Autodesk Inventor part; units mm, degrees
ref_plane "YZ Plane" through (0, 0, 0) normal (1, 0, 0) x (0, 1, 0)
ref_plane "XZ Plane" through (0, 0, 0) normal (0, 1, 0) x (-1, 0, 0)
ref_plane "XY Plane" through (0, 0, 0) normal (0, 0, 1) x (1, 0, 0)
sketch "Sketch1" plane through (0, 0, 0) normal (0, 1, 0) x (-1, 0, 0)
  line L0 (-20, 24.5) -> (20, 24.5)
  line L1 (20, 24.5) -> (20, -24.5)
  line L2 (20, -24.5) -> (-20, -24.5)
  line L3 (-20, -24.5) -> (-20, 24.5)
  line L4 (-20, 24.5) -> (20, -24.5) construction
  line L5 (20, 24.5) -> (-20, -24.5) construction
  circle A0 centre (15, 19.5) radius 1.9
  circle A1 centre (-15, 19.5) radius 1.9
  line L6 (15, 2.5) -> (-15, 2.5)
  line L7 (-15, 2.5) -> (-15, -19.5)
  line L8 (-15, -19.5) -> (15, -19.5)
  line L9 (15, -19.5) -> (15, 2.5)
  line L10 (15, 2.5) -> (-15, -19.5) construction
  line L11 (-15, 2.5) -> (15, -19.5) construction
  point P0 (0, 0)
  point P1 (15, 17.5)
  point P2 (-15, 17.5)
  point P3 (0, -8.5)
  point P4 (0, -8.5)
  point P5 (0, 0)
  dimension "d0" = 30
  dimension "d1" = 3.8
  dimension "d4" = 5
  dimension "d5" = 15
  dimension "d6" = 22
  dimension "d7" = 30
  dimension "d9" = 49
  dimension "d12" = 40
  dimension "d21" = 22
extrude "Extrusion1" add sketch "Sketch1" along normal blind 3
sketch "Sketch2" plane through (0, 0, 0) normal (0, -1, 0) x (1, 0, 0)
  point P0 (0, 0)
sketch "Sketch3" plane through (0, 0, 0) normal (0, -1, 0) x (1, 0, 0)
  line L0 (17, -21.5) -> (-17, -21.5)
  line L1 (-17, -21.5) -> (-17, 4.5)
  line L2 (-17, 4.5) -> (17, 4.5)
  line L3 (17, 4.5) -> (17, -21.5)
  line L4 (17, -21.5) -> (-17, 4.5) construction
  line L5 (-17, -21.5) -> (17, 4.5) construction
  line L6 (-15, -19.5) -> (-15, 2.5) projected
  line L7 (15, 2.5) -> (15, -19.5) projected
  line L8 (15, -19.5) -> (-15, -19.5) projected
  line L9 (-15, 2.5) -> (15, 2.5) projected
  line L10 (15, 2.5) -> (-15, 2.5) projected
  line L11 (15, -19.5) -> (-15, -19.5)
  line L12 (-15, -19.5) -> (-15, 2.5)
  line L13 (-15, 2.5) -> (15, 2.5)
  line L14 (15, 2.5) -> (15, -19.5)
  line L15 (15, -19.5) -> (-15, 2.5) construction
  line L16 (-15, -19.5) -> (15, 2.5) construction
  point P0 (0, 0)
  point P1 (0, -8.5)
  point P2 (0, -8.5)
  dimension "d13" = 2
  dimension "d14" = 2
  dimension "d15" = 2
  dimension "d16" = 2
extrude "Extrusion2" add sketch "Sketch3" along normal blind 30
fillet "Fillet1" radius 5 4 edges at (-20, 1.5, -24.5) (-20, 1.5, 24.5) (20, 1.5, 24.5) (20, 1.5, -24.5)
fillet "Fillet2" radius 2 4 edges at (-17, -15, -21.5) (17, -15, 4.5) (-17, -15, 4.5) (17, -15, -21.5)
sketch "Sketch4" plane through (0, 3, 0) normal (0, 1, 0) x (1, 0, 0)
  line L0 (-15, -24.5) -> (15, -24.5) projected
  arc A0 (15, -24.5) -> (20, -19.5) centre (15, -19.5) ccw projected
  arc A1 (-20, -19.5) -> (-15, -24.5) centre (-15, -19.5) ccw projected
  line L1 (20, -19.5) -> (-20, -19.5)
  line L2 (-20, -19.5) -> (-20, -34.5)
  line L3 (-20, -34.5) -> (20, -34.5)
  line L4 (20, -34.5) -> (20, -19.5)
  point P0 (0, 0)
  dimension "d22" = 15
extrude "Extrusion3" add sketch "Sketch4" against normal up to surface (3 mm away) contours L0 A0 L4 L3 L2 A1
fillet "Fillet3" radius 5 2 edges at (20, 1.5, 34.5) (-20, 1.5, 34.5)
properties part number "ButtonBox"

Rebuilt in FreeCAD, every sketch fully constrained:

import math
import FreeCAD as App
import Part
import Sketcher
from FreeCAD import Vector


def edges_at(feature, points):
    """Names of the edges that pass closest to the given points."""
    edges = feature.Shape.Edges
    near = lambda p: min(range(len(edges)), key=lambda i: edges[i].distToShape(Part.Vertex(*p))[0])
    return sorted({f"Edge{near(p) + 1}" for p in points})

doc = App.newDocument("Part")
body = doc.addObject("PartDesign::Body", "Body")

# Sketch on XZ plane
sketch1 = body.newObject("Sketcher::SketchObject", "Sketch")
sketch1.AttachmentSupport = (doc.getObject("XZ_Plane"), [""])
sketch1.MapMode = "FlatFace"
sketch1.addGeometry([
    Part.LineSegment(Vector(-20, 24.5, 0), Vector(20, 24.5, 0)),  # 0
    Part.LineSegment(Vector(20, 24.5, 0), Vector(20, -24.5, 0)),  # 1
    Part.LineSegment(Vector(20, -24.5, 0), Vector(-20, -24.5, 0)),  # 2
    Part.LineSegment(Vector(-20, -24.5, 0), Vector(-20, 24.5, 0)),  # 3
    Part.LineSegment(Vector(15, 2.5, 0), Vector(-15, 2.5, 0)),  # 4
    Part.LineSegment(Vector(-15, 2.5, 0), Vector(-15, -19.5, 0)),  # 5
    Part.LineSegment(Vector(-15, -19.5, 0), Vector(15, -19.5, 0)),  # 6
    Part.LineSegment(Vector(15, -19.5, 0), Vector(15, 2.5, 0)),  # 7
    Part.Circle(Vector(15, 19.5, 0), Vector(0, 0, 1), 1.9),  # 8
    Part.Circle(Vector(-15, 19.5, 0), Vector(0, 0, 1), 1.9),  # 9
], False)
sketch1.addConstraint([
    Sketcher.Constraint("Coincident", 0, 2, 1, 1),
    Sketcher.Constraint("Coincident", 1, 2, 2, 1),
    Sketcher.Constraint("Coincident", 2, 2, 3, 1),
    Sketcher.Constraint("Coincident", 3, 2, 0, 1),
    Sketcher.Constraint("Coincident", 4, 2, 5, 1),
    Sketcher.Constraint("Coincident", 5, 2, 6, 1),
    Sketcher.Constraint("Coincident", 6, 2, 7, 1),
    Sketcher.Constraint("Coincident", 7, 2, 4, 1),
    Sketcher.Constraint("Horizontal", 0),
    Sketcher.Constraint("Vertical", 1),
    Sketcher.Constraint("Horizontal", 2),
    Sketcher.Constraint("Vertical", 3),
    Sketcher.Constraint("Horizontal", 4),
    Sketcher.Constraint("Vertical", 5),
    Sketcher.Constraint("Horizontal", 6),
    Sketcher.Constraint("Vertical", 7),
    Sketcher.Constraint("Equal", 8, 9),
    Sketcher.Constraint("Symmetric", 0, 2, 2, 2, -1, 1),
    Sketcher.Constraint("Symmetric", 8, 3, 9, 3, -2),
    Sketcher.Constraint("Vertical", 9, 3, 4, 2),
    Sketcher.Constraint("Vertical", 8, 3, 6, 2),
    Sketcher.Constraint("Diameter", 8, 3.8),
    Sketcher.Constraint("DistanceX", 0, 1, 0, 2, 40.0),
    Sketcher.Constraint("DistanceX", 4, 2, 4, 1, 30.0),
    Sketcher.Constraint("DistanceY", 1, 2, 1, 1, 49.0),
    Sketcher.Constraint("DistanceY", 5, 2, 5, 1, 22.0),
    Sketcher.Constraint("DistanceY", 8, 3, 0, 2, 5.0),
    Sketcher.Constraint("DistanceY", 4, 2, 3, 2, 22.0),
])
pad1 = body.newObject("PartDesign::Pad", "Pad")
pad1.Profile = sketch1
pad1.Length = 3
pad1.Reversed = True

# Sketch on XZ plane
sketch2 = body.newObject("Sketcher::SketchObject", "Sketch001")
sketch2.AttachmentSupport = (doc.getObject("XZ_Plane"), [""])
sketch2.MapMode = "FlatFace"
sketch2.addGeometry([
    Part.LineSegment(Vector(-17, -22, 0), Vector(17, -22, 0)),  # 0
    Part.LineSegment(Vector(17, -22, 0), Vector(17, 4, 0)),  # 1
    Part.LineSegment(Vector(17, 4, 0), Vector(-17, 4, 0)),  # 2
    Part.LineSegment(Vector(-17, 4, 0), Vector(-17, -22, 0)),  # 3
    Part.LineSegment(Vector(15, -20, 0), Vector(-15, -20, 0)),  # 4
    Part.LineSegment(Vector(-15, -20, 0), Vector(-15, 2, 0)),  # 5
    Part.LineSegment(Vector(-15, 2, 0), Vector(15, 2, 0)),  # 6
    Part.LineSegment(Vector(15, 2, 0), Vector(15, -20, 0)),  # 7
], False)
sketch2.addConstraint([
    Sketcher.Constraint("Coincident", 0, 2, 1, 1),
    Sketcher.Constraint("Coincident", 1, 2, 2, 1),
    Sketcher.Constraint("Coincident", 2, 2, 3, 1),
    Sketcher.Constraint("Coincident", 3, 2, 0, 1),
    Sketcher.Constraint("Coincident", 4, 2, 5, 1),
    Sketcher.Constraint("Coincident", 5, 2, 6, 1),
    Sketcher.Constraint("Coincident", 6, 2, 7, 1),
    Sketcher.Constraint("Coincident", 7, 2, 4, 1),
    Sketcher.Constraint("Horizontal", 0),
    Sketcher.Constraint("Vertical", 1),
    Sketcher.Constraint("Horizontal", 2),
    Sketcher.Constraint("Vertical", 3),
    Sketcher.Constraint("Horizontal", 4),
    Sketcher.Constraint("Vertical", 5),
    Sketcher.Constraint("Horizontal", 6),
    Sketcher.Constraint("Vertical", 7),
    Sketcher.Constraint("DistanceX", 3, 2, 4, 2, 2.0),
    Sketcher.Constraint("DistanceY", 3, 2, 4, 2, 2.0),
    Sketcher.Constraint("DistanceY", 5, 2, 2, 2, 2.0),
    Sketcher.Constraint("DistanceX", 6, 2, 1, 2, 2.0),
    Sketcher.Constraint("DistanceX", 0, 1, 0, 2, 34.0),
    Sketcher.Constraint("DistanceY", 1, 1, 1, 2, 26.0),
    Sketcher.Constraint("DistanceX", -1, 1, 0, 2, 17.0),
    Sketcher.Constraint("DistanceY", 0, 2, -1, 1, 21.5),
])
pad2 = body.newObject("PartDesign::Pad", "Pad001")
pad2.Profile = sketch2
pad2.Length = 30
doc.recompute()

fillet = body.newObject("PartDesign::Fillet", "Fillet")
fillet.Base = (pad2, edges_at(pad2, [
    (-20, 1.5, -24.5),
    (-20, 1.5, 24.5),
    (20, 1.5, 24.5),
    (20, 1.5, -24.5),
]))
fillet.Radius = 5
doc.recompute()

fillet2 = body.newObject("PartDesign::Fillet", "Fillet001")
fillet2.Base = (fillet, edges_at(fillet, [
    (-17, -15, -21.5),
    (17, -15, 4.5),
    (-17, -15, 4.5),
    (17, -15, -21.5),
]))
fillet2.Radius = 2

# Sketch on XZ plane
sketch3 = body.newObject("Sketcher::SketchObject", "Sketch002")
sketch3.AttachmentSupport = (doc.getObject("XZ_Plane"), [""])
sketch3.MapMode = "FlatFace"
sketch3.AttachmentOffset = App.Placement(Vector(0, 0, -3), App.Rotation())
sketch3.addGeometry([
    Part.LineSegment(Vector(15, 24, 0), Vector(-15, 24, 0)),  # 0
    Part.ArcOfCircle(Part.Circle(Vector(-15, 20, 0), Vector(0, 0, 1), 5), math.radians(90), math.radians(180)),  # 1
    Part.LineSegment(Vector(-20, 20, 0), Vector(-20, 34, 0)),  # 2
    Part.LineSegment(Vector(-20, 34, 0), Vector(20, 34, 0)),  # 3
    Part.LineSegment(Vector(20, 34, 0), Vector(20, 20, 0)),  # 4
    Part.ArcOfCircle(Part.Circle(Vector(15, 20, 0), Vector(0, 0, 1), 5), math.radians(0), math.radians(90)),  # 5
], False)
sketch3.addConstraint([
    Sketcher.Constraint("Tangent", 0, 2, 1, 1),
    Sketcher.Constraint("Tangent", 1, 2, 2, 1),
    Sketcher.Constraint("Coincident", 2, 2, 3, 1),
    Sketcher.Constraint("Coincident", 3, 2, 4, 1),
    Sketcher.Constraint("Tangent", 4, 2, 5, 1),
    Sketcher.Constraint("Tangent", 5, 2, 0, 1),
    Sketcher.Constraint("Horizontal", 0),
    Sketcher.Constraint("Vertical", 2),
    Sketcher.Constraint("Horizontal", 3),
    Sketcher.Constraint("Vertical", 4),
    Sketcher.Constraint("Equal", 1, 5),
    Sketcher.Constraint("DistanceY", 2, 1, 2, 2, 15.0),
    Sketcher.Constraint("DistanceX", 1, 3, -1, 1, 15.0),
    Sketcher.Constraint("DistanceX", -1, 1, 5, 3, 15.0),
    Sketcher.Constraint("Radius", 1, 5.0),
    Sketcher.Constraint("DistanceY", -1, 1, 1, 3, 19.5),
])
pad3 = body.newObject("PartDesign::Pad", "Pad002")
pad3.Profile = sketch3
pad3.Length = 3
doc.recompute()

fillet3 = body.newObject("PartDesign::Fillet", "Fillet002")
fillet3.Base = (pad3, edges_at(pad3, [(20, 1.5, 34.5), (-20, 1.5, 34.5)]))
fillet3.Radius = 5

doc.recompute()
